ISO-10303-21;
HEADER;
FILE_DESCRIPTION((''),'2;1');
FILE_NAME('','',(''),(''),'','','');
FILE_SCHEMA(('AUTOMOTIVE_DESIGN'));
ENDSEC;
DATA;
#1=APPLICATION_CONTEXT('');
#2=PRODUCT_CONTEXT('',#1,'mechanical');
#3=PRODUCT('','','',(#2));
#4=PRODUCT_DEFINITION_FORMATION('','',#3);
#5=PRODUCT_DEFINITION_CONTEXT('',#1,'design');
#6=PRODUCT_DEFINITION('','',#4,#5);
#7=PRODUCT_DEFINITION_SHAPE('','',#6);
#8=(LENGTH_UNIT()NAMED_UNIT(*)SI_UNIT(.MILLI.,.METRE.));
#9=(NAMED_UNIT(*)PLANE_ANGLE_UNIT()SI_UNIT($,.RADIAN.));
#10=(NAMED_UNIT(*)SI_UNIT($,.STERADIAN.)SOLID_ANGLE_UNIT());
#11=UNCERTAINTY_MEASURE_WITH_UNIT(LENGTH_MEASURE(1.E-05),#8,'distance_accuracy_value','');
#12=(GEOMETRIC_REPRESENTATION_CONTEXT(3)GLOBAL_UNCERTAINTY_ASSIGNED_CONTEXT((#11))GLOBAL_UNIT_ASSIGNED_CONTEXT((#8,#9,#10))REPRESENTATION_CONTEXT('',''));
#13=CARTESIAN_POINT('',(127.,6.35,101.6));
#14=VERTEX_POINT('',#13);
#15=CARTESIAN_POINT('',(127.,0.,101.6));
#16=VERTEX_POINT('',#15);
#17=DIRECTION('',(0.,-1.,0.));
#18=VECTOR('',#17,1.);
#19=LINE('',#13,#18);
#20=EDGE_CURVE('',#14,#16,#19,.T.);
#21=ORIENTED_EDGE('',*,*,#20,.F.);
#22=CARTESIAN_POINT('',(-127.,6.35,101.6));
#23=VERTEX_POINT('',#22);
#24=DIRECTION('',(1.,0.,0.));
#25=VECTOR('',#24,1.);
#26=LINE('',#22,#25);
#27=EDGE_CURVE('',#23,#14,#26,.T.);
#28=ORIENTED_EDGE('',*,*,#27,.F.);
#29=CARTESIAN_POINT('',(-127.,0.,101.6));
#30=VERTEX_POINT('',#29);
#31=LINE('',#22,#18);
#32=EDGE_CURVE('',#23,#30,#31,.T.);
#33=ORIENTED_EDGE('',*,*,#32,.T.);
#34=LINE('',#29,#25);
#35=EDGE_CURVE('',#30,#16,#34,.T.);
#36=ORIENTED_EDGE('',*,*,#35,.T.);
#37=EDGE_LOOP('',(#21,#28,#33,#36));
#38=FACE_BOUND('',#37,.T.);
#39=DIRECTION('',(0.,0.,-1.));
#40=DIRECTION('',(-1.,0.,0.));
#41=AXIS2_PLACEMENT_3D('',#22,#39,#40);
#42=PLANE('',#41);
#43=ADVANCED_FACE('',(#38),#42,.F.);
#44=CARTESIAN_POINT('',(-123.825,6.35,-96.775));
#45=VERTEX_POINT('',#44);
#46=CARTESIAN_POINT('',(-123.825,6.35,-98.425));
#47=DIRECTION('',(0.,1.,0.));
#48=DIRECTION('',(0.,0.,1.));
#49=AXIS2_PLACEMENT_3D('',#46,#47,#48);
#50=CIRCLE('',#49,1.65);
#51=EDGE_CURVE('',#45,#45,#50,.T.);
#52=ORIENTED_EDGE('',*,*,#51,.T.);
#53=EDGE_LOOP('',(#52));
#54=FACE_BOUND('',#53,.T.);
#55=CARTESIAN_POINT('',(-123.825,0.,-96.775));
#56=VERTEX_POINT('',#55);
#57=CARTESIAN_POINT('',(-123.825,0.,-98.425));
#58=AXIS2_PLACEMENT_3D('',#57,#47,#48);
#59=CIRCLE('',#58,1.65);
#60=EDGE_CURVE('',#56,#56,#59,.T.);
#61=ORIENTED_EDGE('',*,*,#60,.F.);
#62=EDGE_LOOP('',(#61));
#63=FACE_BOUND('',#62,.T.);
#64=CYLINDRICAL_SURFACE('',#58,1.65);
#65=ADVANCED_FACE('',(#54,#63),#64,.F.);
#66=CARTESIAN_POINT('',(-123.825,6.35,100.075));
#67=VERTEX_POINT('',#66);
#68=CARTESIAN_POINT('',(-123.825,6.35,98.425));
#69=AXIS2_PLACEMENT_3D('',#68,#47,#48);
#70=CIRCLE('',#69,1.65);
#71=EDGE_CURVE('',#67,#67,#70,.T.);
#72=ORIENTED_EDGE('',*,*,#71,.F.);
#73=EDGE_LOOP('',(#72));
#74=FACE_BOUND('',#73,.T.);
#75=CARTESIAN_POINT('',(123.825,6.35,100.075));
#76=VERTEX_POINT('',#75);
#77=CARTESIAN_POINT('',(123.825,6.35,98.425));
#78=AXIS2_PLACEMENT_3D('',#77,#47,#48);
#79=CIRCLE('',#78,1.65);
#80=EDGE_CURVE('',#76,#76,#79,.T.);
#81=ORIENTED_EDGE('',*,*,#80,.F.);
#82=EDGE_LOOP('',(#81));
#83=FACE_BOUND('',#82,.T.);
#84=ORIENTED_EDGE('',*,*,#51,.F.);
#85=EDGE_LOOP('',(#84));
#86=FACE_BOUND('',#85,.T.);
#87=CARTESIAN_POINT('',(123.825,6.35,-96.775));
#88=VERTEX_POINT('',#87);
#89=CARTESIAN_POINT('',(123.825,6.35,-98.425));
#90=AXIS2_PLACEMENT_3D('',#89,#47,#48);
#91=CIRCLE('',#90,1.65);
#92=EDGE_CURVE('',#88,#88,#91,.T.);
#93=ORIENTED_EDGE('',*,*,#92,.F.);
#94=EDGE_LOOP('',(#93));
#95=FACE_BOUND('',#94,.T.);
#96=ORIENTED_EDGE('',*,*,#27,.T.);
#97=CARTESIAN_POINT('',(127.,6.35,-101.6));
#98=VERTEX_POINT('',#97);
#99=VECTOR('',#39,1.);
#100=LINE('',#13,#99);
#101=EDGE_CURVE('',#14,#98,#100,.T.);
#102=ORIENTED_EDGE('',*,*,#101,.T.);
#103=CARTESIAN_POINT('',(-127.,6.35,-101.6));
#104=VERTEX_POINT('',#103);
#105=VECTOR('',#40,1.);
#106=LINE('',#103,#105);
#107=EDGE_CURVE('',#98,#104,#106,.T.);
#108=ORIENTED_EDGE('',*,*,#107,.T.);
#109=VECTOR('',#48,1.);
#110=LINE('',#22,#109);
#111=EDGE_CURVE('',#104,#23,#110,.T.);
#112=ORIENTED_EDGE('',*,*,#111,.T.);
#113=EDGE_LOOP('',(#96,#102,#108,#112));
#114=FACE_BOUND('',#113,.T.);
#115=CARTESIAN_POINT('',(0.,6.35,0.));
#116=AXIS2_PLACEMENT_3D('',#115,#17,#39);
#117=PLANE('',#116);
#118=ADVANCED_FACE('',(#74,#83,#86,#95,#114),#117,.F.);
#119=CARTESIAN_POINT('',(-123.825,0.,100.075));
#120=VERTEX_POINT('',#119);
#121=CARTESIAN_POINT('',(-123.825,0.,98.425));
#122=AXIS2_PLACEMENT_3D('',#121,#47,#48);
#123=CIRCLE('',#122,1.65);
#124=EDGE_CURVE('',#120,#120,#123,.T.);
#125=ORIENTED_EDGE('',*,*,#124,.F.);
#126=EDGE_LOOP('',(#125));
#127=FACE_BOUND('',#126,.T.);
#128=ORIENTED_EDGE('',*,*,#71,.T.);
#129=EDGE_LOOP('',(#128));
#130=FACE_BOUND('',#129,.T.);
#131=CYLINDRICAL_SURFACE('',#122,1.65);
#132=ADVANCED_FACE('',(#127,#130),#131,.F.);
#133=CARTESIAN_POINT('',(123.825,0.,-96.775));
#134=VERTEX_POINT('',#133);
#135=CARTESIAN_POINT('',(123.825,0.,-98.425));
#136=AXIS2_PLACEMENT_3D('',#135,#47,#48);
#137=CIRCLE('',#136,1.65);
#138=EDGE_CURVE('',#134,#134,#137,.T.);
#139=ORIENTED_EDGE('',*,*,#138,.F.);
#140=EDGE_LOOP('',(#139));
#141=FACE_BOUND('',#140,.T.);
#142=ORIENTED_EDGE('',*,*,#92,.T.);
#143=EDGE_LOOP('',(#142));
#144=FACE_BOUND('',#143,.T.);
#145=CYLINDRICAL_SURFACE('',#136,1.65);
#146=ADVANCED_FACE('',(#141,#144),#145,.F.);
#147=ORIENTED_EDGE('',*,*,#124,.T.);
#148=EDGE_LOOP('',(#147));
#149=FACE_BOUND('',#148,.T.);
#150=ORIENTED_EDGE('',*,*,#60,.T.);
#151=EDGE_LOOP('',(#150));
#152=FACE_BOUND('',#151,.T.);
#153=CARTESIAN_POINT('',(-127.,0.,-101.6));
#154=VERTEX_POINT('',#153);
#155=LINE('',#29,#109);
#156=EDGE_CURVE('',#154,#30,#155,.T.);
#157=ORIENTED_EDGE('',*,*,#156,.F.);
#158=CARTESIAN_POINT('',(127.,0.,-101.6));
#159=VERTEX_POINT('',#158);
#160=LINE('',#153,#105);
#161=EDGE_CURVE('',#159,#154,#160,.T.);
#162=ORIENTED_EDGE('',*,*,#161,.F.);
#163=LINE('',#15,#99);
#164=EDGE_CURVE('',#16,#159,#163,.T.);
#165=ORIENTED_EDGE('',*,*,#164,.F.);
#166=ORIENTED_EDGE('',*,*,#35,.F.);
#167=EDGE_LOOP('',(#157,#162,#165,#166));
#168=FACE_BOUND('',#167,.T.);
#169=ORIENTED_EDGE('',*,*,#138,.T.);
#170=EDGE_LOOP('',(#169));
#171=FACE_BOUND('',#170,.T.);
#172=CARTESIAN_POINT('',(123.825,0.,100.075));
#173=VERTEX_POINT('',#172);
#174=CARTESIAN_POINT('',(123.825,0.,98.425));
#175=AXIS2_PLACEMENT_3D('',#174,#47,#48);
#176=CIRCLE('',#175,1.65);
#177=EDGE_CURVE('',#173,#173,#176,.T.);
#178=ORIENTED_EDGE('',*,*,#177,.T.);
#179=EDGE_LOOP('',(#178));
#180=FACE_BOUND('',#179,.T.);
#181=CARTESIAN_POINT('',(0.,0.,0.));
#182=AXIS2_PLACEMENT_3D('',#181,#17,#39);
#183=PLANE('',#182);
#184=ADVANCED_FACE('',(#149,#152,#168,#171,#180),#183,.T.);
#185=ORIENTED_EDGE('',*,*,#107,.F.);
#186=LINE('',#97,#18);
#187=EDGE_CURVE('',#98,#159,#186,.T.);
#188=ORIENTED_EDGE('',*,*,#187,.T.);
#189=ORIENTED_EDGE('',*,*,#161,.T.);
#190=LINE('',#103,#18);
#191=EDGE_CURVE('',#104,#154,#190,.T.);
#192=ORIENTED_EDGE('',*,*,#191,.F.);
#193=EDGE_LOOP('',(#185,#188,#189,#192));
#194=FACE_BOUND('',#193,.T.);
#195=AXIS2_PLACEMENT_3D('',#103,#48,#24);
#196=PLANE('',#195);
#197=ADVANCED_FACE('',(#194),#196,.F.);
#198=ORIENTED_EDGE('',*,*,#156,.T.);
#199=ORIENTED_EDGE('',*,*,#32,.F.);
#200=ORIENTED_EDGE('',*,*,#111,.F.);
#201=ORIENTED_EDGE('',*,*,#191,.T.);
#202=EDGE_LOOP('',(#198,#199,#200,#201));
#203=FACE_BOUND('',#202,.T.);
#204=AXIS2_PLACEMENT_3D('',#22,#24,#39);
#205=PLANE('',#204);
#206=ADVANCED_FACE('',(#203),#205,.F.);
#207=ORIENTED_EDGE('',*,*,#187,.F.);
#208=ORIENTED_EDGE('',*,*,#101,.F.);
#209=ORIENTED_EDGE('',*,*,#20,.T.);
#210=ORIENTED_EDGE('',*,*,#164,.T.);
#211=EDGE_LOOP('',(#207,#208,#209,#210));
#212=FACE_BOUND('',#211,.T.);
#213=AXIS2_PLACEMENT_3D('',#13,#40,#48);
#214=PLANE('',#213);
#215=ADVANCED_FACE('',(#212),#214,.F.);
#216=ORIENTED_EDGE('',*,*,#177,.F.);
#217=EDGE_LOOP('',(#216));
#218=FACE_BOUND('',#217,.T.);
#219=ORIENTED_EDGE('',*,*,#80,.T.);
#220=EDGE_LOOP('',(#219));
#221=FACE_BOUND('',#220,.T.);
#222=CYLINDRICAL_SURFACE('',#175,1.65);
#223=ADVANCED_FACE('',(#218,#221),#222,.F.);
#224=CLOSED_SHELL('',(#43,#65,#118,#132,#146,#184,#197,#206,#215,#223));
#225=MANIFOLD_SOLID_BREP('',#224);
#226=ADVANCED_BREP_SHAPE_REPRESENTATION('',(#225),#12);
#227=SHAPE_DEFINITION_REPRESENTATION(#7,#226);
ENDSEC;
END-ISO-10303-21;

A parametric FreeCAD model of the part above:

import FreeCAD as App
import Part
import Sketcher
from FreeCAD import Vector
Q = App.Units.Quantity

doc = App.newDocument("Part")
body = doc.addObject("PartDesign::Body", "Body")

sketch1 = doc.addObject("Sketcher::SketchObject", "Sketch")
body.addObject(sketch1)
sketch1.AttachmentSupport = (doc.XZ_Plane, [""])
sketch1.MapMode = "FlatFace"
sketch1.addGeometry(Part.LineSegment(Vector(-127, -102, 0), Vector(-127, 102, 0)), False)
sketch1.addGeometry(Part.LineSegment(Vector(-127, 102, 0), Vector(127, 102, 0)), False)
sketch1.addGeometry(Part.LineSegment(Vector(127, 102, 0), Vector(127, -102, 0)), False)
sketch1.addGeometry(Part.LineSegment(Vector(127, -102, 0), Vector(-127, -102, 0)), False)
sketch1.addConstraint(Sketcher.Constraint("Coincident", 0, 2, 1, 1))
sketch1.addConstraint(Sketcher.Constraint("Coincident", 1, 2, 2, 1))
sketch1.addConstraint(Sketcher.Constraint("Coincident", 2, 2, 3, 1))
sketch1.addConstraint(Sketcher.Constraint("Coincident", 3, 2, 0, 1))
sketch1.addConstraint(Sketcher.Constraint("Vertical", 0))
sketch1.addConstraint(Sketcher.Constraint("Horizontal", 1))
sketch1.addConstraint(Sketcher.Constraint("Vertical", 2))
sketch1.addConstraint(Sketcher.Constraint("Horizontal", 3))
sketch1.addConstraint(Sketcher.Constraint("Symmetric", 0, 2, 2, 2, -1, 1))
sketch1.addConstraint(Sketcher.Constraint("DistanceX", 1, 1, 1, 2, Q("10 in")))
sketch1.addConstraint(Sketcher.Constraint("DistanceY", 0, 1, 0, 2, Q("8 in")))
pad1 = doc.addObject("PartDesign::Pad", "Pad")
body.addObject(pad1)
pad1.Profile = sketch1
pad1.Length = Q("0.25 in")
pad1.Reversed = True

sketch2 = doc.addObject("Sketcher::SketchObject", "Sketch001")
body.addObject(sketch2)
sketch2.AttachmentSupport = (doc.XZ_Plane, [""])
sketch2.MapMode = "FlatFace"
sketch2.AttachmentOffset = App.Placement(Vector(0, 0, -0.25 * 25.4), App.Rotation())
sketch2.addGeometry(Part.Circle(Vector(123.8, -98.4, 0), Vector(0, 0, 1), 1.6), False)
sketch2.addGeometry(Part.Circle(Vector(123.8, 98.4, 0), Vector(0, 0, 1), 1.6), False)
sketch2.addGeometry(Part.Circle(Vector(-123.8, 98.4, 0), Vector(0, 0, 1), 1.6), False)
sketch2.addGeometry(Part.Circle(Vector(-123.8, -98.4, 0), Vector(0, 0, 1), 1.6), False)
sketch2.addConstraint(Sketcher.Constraint("Equal", 0, 1))
sketch2.addConstraint(Sketcher.Constraint("Equal", 1, 2))
sketch2.addConstraint(Sketcher.Constraint("Equal", 2, 3))
sketch2.addConstraint(Sketcher.Constraint("Symmetric", 0, 3, 2, 3, -1, 1))
sketch2.addConstraint(Sketcher.Constraint("Symmetric", 1, 3, 3, 3, -1, 1))
sketch2.addConstraint(Sketcher.Constraint("Symmetric", 1, 3, 2, 3, -2))
sketch2.addConstraint(Sketcher.Constraint("Diameter", 0, Q("3.3 mm")))
sketch2.addConstraint(Sketcher.Constraint("DistanceY", 0, 3, 1, 3, Q("7.75 in")))
sketch2.addConstraint(Sketcher.Constraint("DistanceX", 2, 3, 1, 3, Q("9.75 in")))
pocket1 = doc.addObject("PartDesign::Pocket", "Pocket")
body.addObject(pocket1)
pocket1.Profile = sketch2
pocket1.Type = "ThroughAll"
pocket1.Reversed = True

doc.recompute()
